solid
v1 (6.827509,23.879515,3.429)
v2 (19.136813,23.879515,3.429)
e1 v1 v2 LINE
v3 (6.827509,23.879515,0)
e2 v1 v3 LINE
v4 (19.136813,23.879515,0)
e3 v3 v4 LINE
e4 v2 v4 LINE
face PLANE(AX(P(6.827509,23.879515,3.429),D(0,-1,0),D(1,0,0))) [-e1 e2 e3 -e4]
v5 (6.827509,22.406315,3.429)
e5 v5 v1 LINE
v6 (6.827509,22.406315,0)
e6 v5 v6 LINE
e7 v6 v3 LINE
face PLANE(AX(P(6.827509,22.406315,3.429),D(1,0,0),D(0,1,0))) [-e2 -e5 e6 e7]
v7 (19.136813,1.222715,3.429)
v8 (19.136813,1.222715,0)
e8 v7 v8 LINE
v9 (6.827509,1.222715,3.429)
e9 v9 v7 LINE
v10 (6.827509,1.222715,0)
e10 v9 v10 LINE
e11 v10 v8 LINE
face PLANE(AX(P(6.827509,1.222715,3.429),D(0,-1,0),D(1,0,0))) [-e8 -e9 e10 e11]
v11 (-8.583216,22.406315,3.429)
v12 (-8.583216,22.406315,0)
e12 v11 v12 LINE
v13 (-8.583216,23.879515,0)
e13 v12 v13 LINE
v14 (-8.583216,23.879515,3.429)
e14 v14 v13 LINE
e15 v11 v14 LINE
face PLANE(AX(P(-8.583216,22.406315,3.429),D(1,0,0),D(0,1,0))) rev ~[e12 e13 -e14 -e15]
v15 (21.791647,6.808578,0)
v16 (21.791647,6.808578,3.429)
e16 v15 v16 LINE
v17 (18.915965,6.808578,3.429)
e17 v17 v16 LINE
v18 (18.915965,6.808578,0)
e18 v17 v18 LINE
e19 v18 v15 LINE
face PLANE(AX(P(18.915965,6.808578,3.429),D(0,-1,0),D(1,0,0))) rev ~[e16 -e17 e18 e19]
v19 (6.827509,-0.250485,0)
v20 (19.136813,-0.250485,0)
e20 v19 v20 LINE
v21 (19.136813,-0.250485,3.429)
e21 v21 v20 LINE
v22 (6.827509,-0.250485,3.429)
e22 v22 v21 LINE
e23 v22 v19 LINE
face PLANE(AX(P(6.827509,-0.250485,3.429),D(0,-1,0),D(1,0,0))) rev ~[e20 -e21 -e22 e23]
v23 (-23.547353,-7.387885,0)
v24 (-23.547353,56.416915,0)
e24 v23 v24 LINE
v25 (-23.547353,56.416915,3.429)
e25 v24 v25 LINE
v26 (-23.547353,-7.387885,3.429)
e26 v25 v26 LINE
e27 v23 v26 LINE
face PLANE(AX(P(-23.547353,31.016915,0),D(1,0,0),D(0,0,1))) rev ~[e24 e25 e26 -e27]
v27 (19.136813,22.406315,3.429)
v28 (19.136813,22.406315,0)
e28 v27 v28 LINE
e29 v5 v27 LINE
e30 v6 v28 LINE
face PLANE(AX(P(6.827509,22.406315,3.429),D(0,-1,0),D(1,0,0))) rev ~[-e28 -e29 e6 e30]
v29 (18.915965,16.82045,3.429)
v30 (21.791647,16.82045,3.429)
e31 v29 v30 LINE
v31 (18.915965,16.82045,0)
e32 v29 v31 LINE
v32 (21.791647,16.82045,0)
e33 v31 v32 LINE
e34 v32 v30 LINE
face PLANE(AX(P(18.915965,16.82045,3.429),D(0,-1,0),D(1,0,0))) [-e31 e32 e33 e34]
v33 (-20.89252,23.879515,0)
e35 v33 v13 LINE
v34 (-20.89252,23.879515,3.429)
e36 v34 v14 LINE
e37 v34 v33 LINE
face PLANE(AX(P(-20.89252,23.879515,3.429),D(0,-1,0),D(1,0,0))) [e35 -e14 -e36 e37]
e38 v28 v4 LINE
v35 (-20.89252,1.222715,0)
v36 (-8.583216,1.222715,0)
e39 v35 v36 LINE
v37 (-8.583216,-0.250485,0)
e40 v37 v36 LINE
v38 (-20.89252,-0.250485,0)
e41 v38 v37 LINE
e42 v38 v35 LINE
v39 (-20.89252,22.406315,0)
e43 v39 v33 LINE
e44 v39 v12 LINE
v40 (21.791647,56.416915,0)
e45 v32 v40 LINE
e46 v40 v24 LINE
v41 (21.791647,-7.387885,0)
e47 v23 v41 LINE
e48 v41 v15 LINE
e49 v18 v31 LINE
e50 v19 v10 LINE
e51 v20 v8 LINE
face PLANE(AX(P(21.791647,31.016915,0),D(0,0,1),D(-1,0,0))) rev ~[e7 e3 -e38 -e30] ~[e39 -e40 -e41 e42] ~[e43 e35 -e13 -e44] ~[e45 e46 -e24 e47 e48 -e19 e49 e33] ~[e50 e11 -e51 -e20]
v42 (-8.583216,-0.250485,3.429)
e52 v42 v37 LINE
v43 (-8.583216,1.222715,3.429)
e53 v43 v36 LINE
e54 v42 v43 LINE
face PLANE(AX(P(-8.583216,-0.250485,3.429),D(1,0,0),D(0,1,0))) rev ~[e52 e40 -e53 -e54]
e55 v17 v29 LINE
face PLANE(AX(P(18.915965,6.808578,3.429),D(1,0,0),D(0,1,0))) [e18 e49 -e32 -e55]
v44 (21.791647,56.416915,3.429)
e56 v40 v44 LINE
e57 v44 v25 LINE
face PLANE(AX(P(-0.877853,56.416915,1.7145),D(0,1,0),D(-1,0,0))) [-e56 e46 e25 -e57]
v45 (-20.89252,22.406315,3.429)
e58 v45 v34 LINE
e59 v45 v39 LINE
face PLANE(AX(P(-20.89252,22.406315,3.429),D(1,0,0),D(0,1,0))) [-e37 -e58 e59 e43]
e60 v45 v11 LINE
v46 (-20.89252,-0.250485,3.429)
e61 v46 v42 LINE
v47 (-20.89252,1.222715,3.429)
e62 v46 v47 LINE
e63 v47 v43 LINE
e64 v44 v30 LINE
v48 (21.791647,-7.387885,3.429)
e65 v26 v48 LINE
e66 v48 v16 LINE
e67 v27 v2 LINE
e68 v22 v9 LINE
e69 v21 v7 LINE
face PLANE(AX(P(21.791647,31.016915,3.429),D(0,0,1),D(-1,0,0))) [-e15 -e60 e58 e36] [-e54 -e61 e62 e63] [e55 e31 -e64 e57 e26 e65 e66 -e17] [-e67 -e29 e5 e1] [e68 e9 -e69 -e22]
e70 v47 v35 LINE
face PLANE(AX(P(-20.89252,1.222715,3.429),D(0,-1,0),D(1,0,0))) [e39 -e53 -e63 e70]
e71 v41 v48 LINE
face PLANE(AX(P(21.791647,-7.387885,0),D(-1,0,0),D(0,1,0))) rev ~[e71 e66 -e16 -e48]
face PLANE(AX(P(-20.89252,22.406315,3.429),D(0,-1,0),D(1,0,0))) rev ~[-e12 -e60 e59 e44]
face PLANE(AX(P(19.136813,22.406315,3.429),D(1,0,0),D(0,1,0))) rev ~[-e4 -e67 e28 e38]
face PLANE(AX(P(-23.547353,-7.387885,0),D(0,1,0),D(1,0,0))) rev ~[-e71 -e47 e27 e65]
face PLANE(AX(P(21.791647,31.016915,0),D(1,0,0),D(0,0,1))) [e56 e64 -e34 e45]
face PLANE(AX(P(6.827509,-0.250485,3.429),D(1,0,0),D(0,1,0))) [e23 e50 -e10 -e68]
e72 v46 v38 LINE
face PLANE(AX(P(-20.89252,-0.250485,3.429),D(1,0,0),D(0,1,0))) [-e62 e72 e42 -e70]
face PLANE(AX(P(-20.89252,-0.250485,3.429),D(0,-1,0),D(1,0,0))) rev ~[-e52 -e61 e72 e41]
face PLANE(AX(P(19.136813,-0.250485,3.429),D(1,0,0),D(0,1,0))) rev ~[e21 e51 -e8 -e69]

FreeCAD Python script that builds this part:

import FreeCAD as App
import Part
import Sketcher
from FreeCAD import Vector
Q = App.Units.Quantity


def add_polygon(sketch, points):
    """Adds a closed chain of lines whose ends are joined by coincident constraints."""
    first, n = sketch.GeometryCount, len(points)
    for a, b in zip(points, points[1:] + points[:1]):
        sketch.addGeometry(Part.LineSegment(App.Vector(*a, 0), App.Vector(*b, 0)), False)
    for i in range(n):
        sketch.addConstraint(Sketcher.Constraint("Coincident", first + i, 2, first + (i + 1) % n, 1))

doc = App.newDocument("Part")
params = doc.addObject("Spreadsheet::Sheet", "Params")
for row, (alias, value) in enumerate([
    ("sketch1_width", "1.785 in"),
    ("sketch1_height", "1.512 in"),
    ("pad1_length", "0.135 in"),
    ("sketch2_height", "0.058 in"),
    ("pocket1_length", "1 in"),
    ("sketch3_width", "1.785 in"),
    ("sketch3_height", "0.135 in"),
    ("pad2_length", "1 in"),
], start=1):
    params.set(f"A{row}", alias)
    params.set(f"B{row}", "=" + value)
    params.setAlias(f"B{row}", alias)

body = doc.addObject("PartDesign::Body", "Body")

# Sketch on XY plane
sketch1 = body.newObject("Sketcher::SketchObject", "Sketch")
sketch1.AttachmentSupport = (doc.getObject("XY_Plane"), [""])
sketch1.MapMode = "FlatFace"
add_polygon(sketch1, [(-23.547353, 31.016915), (-23.547353, -7.387885), (21.791647, -7.387885), (21.791647, 31.016915)])  # lines 0-3
sketch1.addConstraint([
    Sketcher.Constraint("Vertical", 0),
    Sketcher.Constraint("Horizontal", 1),
    Sketcher.Constraint("Vertical", 2),
    Sketcher.Constraint("Horizontal", 3),
    Sketcher.Constraint("DistanceX", 1, 1, 1, 2, Q("1.785 in")),
    Sketcher.Constraint("DistanceY", 0, 2, 0, 1, Q("1.512 in")),
    Sketcher.Constraint("DistanceX", 0, 2, -1, 1, Q("23.547353 mm")),
    Sketcher.Constraint("DistanceY", 0, 2, -1, 1, Q("7.387885 mm")),
])
sketch1.setExpression("Constraints[8]", "Params.sketch1_width")
sketch1.setExpression("Constraints[9]", "Params.sketch1_height")
pad1 = body.newObject("PartDesign::Pad", "Pad")
pad1.Profile = sketch1
pad1.setExpression("Length", "Params.pad1_length")

# Sketch on XY plane
sketch2 = body.newObject("Sketcher::SketchObject", "Sketch001")
sketch2.AttachmentSupport = (doc.getObject("XY_Plane"), [""])
sketch2.MapMode = "FlatFace"
sketch2.AttachmentOffset = App.Placement(Vector(0, 0, 0.135 * 25.4), App.Rotation())
add_polygon(sketch2, [(-20.89252, 23.879515), (-20.89252, 22.406315), (-8.583216, 22.406315), (-8.583216, 23.879515)])  # lines 0-3
add_polygon(sketch2, [(6.827509, 23.879515), (6.827509, 22.406315), (19.136813, 22.406315), (19.136813, 23.879515)])  # lines 4-7
add_polygon(sketch2, [(-20.89252, 1.222715), (-20.89252, -0.250485), (-8.583216, -0.250485), (-8.583216, 1.222715)])  # lines 8-11
add_polygon(sketch2, [(6.827509, 1.222715), (6.827509, -0.250485), (19.136813, -0.250485), (19.136813, 1.222715)])  # lines 12-15
add_polygon(sketch2, [(18.915965, 16.82045), (18.915965, 6.808578), (24.667327, 6.808578), (24.667327, 16.82045)])  # lines 16-19
sketch2.addConstraint([
    Sketcher.Constraint("Vertical", 0),
    Sketcher.Constraint("Horizontal", 1),
    Sketcher.Constraint("Vertical", 2),
    Sketcher.Constraint("Horizontal", 3),
    Sketcher.Constraint("Vertical", 4),
    Sketcher.Constraint("Horizontal", 5),
    Sketcher.Constraint("Vertical", 6),
    Sketcher.Constraint("Horizontal", 7),
    Sketcher.Constraint("Vertical", 8),
    Sketcher.Constraint("Horizontal", 9),
    Sketcher.Constraint("Vertical", 10),
    Sketcher.Constraint("Horizontal", 11),
    Sketcher.Constraint("Vertical", 12),
    Sketcher.Constraint("Horizontal", 13),
    Sketcher.Constraint("Vertical", 14),
    Sketcher.Constraint("Horizontal", 15),
    Sketcher.Constraint("Vertical", 16),
    Sketcher.Constraint("Horizontal", 17),
    Sketcher.Constraint("Vertical", 18),
    Sketcher.Constraint("Horizontal", 19),
    Sketcher.Constraint("Horizontal", 1, 2, 4, 2),
    Sketcher.Constraint("Horizontal", 3, 2, 6, 2),
    Sketcher.Constraint("Horizontal", 9, 2, 12, 2),
    Sketcher.Constraint("Horizontal", 11, 2, 14, 2),
    Sketcher.Constraint("Vertical", 3, 2, 8, 2),
    Sketcher.Constraint("Vertical", 2, 2, 9, 2),
    Sketcher.Constraint("Vertical", 7, 2, 12, 2),
    Sketcher.Constraint("Vertical", 6, 2, 13, 2),
    Sketcher.Constraint("Equal", 3, 5),
    Sketcher.Constraint("Equal", 6, 8),
    Sketcher.Constraint("DistanceY", 0, 2, 0, 1, Q("0.058 in")),
    Sketcher.Constraint("DistanceY", 8, 2, 3, 2, Q("0.95 in")),
    Sketcher.Constraint("DistanceX", 17, 1, 17, 2, Q("5.751361 mm")),
    Sketcher.Constraint("DistanceX", 1, 1, 1, 2, Q("12.309304 mm")),
    Sketcher.Constraint("DistanceY", 16, 2, 16, 1, Q("10.011873 mm")),
    Sketcher.Constraint("DistanceX", 0, 2, -1, 1, Q("20.89252 mm")),
    Sketcher.Constraint("DistanceX", -1, 1, 4, 2, Q("6.827509 mm")),
    Sketcher.Constraint("DistanceY", -1, 1, 18, 2, Q("16.82045 mm")),
    Sketcher.Constraint("DistanceY", -1, 1, 0, 2, Q("22.406315 mm")),
    Sketcher.Constraint("DistanceX", -1, 1, 16, 2, Q("18.915965 mm")),
])
sketch2.setExpression("Constraints[50]", "Params.sketch2_height")
pocket1 = body.newObject("PartDesign::Pocket", "Pocket")
pocket1.Profile = sketch2
pocket1.setExpression("Length", "Params.pocket1_length")

# Sketch on XZ plane
sketch3 = body.newObject("Sketcher::SketchObject", "Sketch002")
sketch3.AttachmentSupport = (doc.getObject("XZ_Plane"), [""])
sketch3.MapMode = "FlatFace"
sketch3.AttachmentOffset = App.Placement(Vector(0, 0, -31.016915), App.Rotation())
add_polygon(sketch3, [(21.791647, 3.429), (21.791647, 0), (-23.547353, 0), (-23.547353, 3.429)])  # lines 0-3
sketch3.addConstraint([
    Sketcher.Constraint("Vertical", 0),
    Sketcher.Constraint("Horizontal", 1),
    Sketcher.Constraint("Vertical", 2),
    Sketcher.Constraint("Horizontal", 3),
    Sketcher.Constraint("PointOnObject", 0, 2, -1),
    Sketcher.Constraint("DistanceX", 1, 2, 1, 1, Q("1.785 in")),
    Sketcher.Constraint("DistanceY", 0, 2, 0, 1, Q("0.135 in")),
    Sketcher.Constraint("DistanceX", -1, 1, 0, 2, Q("21.791647 mm")),
])
sketch3.setExpression("Constraints[9]", "Params.sketch3_width")
sketch3.setExpression("Constraints[10]", "Params.sketch3_height")
pad2 = body.newObject("PartDesign::Pad", "Pad001")
pad2.Profile = sketch3
pad2.setExpression("Length", "Params.pad2_length")
pad2.Reversed = True

doc.recompute()
